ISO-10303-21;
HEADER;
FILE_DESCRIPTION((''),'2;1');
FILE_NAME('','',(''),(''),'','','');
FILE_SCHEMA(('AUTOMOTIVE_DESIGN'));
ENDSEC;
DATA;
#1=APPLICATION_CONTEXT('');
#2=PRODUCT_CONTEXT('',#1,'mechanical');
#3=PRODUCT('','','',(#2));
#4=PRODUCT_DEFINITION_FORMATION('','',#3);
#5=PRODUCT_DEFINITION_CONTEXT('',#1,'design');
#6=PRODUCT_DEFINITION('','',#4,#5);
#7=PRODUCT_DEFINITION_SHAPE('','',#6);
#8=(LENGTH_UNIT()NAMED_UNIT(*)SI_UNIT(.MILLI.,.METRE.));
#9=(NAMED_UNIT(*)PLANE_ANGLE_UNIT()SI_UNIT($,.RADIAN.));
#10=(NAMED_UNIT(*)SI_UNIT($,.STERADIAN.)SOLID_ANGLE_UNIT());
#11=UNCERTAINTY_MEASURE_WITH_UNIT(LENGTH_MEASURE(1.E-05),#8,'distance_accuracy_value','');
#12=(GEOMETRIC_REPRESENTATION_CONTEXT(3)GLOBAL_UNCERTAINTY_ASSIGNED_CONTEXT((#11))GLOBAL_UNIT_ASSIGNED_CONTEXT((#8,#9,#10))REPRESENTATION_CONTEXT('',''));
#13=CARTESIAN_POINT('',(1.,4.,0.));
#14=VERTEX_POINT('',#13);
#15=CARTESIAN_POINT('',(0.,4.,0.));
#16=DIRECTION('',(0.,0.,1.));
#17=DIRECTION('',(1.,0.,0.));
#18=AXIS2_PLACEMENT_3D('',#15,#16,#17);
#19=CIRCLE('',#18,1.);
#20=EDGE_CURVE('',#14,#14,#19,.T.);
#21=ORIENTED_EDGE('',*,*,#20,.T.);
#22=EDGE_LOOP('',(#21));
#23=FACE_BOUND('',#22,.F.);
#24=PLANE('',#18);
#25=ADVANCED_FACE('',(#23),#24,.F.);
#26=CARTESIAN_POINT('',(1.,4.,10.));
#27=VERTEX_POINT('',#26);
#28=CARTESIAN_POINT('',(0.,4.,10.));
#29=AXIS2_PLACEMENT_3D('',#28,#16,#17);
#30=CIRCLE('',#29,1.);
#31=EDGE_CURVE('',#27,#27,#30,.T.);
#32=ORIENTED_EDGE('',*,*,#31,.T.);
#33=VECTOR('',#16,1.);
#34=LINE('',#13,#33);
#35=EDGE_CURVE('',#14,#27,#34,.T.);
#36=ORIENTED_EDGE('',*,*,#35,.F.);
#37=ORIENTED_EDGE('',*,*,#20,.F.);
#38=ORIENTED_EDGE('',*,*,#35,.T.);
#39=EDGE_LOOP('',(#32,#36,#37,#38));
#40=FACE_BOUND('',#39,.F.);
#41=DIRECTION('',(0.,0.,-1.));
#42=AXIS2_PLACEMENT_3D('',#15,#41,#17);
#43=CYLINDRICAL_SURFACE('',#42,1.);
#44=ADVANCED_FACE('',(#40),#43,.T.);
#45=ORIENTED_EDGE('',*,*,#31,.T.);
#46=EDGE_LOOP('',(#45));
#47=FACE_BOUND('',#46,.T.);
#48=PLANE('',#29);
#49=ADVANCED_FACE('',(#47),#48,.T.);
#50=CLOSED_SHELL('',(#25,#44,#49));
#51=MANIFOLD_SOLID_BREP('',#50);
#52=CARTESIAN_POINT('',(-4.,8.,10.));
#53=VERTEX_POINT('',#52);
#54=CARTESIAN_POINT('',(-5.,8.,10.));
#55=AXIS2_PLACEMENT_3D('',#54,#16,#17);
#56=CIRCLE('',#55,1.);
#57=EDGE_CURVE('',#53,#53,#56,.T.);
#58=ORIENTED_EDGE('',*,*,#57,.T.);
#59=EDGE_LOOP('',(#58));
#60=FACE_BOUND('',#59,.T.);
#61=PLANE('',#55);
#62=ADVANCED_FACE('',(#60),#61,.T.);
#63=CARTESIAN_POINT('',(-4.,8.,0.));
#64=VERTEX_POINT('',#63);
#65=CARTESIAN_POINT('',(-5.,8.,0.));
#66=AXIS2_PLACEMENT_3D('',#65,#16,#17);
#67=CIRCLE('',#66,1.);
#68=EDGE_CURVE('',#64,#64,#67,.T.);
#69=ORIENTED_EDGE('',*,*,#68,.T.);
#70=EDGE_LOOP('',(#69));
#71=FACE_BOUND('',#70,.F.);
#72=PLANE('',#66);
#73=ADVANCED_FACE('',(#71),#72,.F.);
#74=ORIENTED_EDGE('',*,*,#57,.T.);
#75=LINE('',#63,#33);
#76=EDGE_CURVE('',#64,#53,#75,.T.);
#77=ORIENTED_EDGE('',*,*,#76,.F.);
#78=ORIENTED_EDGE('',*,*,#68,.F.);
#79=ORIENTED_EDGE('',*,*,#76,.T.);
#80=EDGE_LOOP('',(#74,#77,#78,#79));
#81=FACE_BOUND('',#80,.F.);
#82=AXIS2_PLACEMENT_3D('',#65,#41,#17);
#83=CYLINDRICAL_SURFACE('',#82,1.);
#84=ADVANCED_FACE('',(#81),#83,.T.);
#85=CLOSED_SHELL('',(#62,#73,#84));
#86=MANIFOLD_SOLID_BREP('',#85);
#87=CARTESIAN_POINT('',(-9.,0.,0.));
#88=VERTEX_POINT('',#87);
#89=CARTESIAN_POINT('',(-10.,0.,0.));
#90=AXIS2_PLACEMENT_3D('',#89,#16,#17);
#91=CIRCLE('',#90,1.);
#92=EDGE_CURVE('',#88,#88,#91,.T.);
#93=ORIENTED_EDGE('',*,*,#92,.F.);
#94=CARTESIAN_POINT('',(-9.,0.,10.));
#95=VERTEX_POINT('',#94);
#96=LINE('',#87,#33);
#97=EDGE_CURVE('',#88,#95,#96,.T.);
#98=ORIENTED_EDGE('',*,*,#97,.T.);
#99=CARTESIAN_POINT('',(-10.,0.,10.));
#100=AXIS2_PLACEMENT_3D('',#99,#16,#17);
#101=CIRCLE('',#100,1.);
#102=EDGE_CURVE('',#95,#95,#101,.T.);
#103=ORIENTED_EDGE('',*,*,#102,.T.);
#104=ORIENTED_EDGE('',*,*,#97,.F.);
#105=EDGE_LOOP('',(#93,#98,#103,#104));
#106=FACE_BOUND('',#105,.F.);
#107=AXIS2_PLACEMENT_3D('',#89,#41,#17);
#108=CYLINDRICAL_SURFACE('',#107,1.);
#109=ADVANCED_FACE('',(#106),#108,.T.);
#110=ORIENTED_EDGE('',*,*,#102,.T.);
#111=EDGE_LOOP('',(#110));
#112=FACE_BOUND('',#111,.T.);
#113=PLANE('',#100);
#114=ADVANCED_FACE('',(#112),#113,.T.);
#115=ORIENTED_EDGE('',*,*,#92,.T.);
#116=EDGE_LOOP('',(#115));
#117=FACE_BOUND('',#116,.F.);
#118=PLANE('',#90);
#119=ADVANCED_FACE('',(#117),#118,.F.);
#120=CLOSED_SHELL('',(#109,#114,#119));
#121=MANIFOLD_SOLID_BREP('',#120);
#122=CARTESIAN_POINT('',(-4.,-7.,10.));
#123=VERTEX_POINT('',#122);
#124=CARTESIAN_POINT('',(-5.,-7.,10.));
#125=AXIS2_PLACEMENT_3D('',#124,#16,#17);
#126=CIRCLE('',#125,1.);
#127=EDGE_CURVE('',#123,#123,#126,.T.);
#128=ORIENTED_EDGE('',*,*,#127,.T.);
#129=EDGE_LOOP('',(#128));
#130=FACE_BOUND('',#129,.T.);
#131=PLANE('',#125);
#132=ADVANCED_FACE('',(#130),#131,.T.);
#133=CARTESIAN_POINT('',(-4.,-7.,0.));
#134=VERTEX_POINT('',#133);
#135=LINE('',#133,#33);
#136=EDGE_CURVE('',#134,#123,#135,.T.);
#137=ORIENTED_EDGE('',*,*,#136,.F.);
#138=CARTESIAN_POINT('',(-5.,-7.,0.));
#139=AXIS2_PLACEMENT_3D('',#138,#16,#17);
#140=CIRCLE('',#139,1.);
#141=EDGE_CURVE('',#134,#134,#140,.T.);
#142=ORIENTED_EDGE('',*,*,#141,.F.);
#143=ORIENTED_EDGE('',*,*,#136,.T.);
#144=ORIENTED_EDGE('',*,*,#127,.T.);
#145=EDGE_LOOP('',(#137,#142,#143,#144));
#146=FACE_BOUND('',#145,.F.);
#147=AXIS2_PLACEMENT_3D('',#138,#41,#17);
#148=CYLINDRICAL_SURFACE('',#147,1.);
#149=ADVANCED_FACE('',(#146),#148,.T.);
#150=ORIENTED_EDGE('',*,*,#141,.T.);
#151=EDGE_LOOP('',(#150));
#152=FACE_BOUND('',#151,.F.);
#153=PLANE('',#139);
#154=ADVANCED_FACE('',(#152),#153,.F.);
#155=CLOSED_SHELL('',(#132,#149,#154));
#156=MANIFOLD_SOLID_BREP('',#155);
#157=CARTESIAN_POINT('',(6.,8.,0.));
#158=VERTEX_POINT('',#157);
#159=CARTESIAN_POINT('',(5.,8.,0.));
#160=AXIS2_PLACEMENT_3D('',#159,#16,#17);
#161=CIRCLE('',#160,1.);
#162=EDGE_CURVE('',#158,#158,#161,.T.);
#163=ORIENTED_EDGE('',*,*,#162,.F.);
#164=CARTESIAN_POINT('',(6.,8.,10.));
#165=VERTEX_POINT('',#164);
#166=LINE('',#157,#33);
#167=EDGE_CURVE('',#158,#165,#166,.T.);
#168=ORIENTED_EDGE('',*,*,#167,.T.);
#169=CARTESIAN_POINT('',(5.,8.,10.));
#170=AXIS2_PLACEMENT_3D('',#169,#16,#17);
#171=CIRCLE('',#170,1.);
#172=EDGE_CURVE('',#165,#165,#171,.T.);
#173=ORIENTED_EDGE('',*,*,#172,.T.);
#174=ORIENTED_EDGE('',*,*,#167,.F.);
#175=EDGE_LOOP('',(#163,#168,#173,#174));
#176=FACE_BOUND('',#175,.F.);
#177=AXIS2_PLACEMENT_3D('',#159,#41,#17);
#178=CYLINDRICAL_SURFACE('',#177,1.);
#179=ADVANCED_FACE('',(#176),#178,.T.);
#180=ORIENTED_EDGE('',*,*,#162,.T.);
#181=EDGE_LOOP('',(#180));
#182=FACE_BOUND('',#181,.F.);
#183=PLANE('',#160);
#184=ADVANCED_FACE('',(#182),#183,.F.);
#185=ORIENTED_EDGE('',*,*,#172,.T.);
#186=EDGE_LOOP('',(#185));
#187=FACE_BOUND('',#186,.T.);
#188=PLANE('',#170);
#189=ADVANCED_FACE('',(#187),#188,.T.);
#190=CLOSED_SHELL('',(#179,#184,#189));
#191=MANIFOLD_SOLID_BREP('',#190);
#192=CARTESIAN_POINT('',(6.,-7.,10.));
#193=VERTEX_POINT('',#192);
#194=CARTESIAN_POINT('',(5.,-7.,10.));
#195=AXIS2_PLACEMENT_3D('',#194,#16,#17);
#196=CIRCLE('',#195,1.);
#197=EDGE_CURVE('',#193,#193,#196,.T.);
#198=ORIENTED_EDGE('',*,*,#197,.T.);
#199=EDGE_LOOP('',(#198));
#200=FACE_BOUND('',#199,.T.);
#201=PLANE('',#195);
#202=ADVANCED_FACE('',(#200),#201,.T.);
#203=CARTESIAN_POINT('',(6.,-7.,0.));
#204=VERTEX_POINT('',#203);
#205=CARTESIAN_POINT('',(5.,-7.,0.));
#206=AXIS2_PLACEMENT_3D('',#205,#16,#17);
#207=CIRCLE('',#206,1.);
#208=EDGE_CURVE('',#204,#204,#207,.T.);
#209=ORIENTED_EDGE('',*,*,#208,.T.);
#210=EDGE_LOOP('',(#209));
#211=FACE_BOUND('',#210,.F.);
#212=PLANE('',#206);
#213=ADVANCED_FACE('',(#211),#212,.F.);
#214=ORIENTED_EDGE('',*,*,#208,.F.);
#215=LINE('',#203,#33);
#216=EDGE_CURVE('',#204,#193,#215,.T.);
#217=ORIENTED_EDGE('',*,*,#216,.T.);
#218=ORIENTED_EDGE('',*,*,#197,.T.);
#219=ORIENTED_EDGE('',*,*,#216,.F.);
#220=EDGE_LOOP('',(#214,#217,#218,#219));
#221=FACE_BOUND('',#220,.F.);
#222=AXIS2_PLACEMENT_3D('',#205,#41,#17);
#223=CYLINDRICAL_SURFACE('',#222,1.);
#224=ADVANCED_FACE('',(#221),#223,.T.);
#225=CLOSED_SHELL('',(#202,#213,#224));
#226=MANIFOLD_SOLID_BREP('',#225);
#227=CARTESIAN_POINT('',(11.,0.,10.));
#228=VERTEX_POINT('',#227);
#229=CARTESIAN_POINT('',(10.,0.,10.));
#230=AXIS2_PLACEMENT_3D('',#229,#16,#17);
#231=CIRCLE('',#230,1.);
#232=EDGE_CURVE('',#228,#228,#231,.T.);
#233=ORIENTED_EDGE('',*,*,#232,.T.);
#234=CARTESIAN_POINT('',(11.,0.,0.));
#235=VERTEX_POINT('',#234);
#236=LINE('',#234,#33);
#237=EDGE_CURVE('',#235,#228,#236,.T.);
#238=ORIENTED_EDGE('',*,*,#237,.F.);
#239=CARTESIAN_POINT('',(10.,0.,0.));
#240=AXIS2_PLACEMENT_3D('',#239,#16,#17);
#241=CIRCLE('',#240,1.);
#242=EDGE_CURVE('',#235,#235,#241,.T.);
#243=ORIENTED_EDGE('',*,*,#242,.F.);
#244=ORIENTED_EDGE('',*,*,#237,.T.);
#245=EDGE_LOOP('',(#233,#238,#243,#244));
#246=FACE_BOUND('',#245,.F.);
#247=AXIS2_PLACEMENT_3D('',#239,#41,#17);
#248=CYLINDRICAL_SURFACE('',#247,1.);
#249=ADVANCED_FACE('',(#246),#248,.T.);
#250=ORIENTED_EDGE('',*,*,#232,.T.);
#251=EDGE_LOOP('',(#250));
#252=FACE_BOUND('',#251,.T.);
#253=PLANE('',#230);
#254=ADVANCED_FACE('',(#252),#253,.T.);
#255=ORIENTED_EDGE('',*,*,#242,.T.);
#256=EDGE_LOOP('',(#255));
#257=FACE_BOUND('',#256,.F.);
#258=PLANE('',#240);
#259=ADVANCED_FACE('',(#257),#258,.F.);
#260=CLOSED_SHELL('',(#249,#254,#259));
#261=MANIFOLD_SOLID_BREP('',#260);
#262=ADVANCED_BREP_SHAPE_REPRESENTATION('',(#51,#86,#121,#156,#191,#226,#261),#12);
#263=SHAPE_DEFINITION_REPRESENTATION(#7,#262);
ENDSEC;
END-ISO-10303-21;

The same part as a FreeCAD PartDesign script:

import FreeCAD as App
import Part
import Sketcher
Q = App.Units.Quantity

doc = App.newDocument("Part")
body = doc.addObject("PartDesign::Body", "Body")

# Sketch on XY plane
sketch1 = body.newObject("Sketcher::SketchObject", "Sketch")
sketch1.AttachmentSupport = (doc.getObject("XY_Plane"), [""])
sketch1.MapMode = "FlatFace"
sketch1.addGeometry(Part.Circle(App.Vector(5, 8, 0), App.Vector(0, 0, 1), 1), False)
sketch1.addConstraint(Sketcher.Constraint("Diameter", 0, Q("2 mm")))
sketch1.addConstraint(Sketcher.Constraint("DistanceX", -1, 1, 0, 3, Q("5 mm")))
sketch1.addConstraint(Sketcher.Constraint("DistanceY", -1, 1, 0, 3, Q("8 mm")))
pad1 = body.newObject("PartDesign::Pad", "Pad")
pad1.Profile = sketch1
pad1.Length = 10
body2 = doc.addObject("PartDesign::Body", "Body001")

# Sketch on XY plane
sketch2 = body2.newObject("Sketcher::SketchObject", "Sketch001")
sketch2.AttachmentSupport = (doc.getObject("XY_Plane001"), [""])
sketch2.MapMode = "FlatFace"
sketch2.addGeometry(Part.Circle(App.Vector(-5, 8, 0), App.Vector(0, 0, 1), 1), False)
sketch2.addConstraint(Sketcher.Constraint("Diameter", 0, Q("2 mm")))
sketch2.addConstraint(Sketcher.Constraint("DistanceX", 0, 3, -1, 1, Q("5 mm")))
sketch2.addConstraint(Sketcher.Constraint("DistanceY", -1, 1, 0, 3, Q("8 mm")))
pad2 = body2.newObject("PartDesign::Pad", "Pad001")
pad2.Profile = sketch2
pad2.Length = 10
body3 = doc.addObject("PartDesign::Body", "Body002")

# Sketch on XY plane
sketch3 = body3.newObject("Sketcher::SketchObject", "Sketch002")
sketch3.AttachmentSupport = (doc.getObject("XY_Plane002"), [""])
sketch3.MapMode = "FlatFace"
sketch3.addGeometry(Part.Circle(App.Vector(-5, -7, 0), App.Vector(0, 0, 1), 1), False)
sketch3.addConstraint(Sketcher.Constraint("Diameter", 0, Q("2 mm")))
sketch3.addConstraint(Sketcher.Constraint("DistanceX", 0, 3, -1, 1, Q("5 mm")))
sketch3.addConstraint(Sketcher.Constraint("DistanceY", 0, 3, -1, 1, Q("7 mm")))
pad3 = body3.newObject("PartDesign::Pad", "Pad002")
pad3.Profile = sketch3
pad3.Length = 10
body4 = doc.addObject("PartDesign::Body", "Body003")

# Sketch on XY plane
sketch4 = body4.newObject("Sketcher::SketchObject", "Sketch003")
sketch4.AttachmentSupport = (doc.getObject("XY_Plane003"), [""])
sketch4.MapMode = "FlatFace"
sketch4.addGeometry(Part.Circle(App.Vector(5, -7, 0), App.Vector(0, 0, 1), 1), False)
sketch4.addConstraint(Sketcher.Constraint("Diameter", 0, Q("2 mm")))
sketch4.addConstraint(Sketcher.Constraint("DistanceX", -1, 1, 0, 3, Q("5 mm")))
sketch4.addConstraint(Sketcher.Constraint("DistanceY", 0, 3, -1, 1, Q("7 mm")))
pad4 = body4.newObject("PartDesign::Pad", "Pad003")
pad4.Profile = sketch4
pad4.Length = 10
body5 = doc.addObject("PartDesign::Body", "Body004")

# Sketch on XY plane
sketch5 = body5.newObject("Sketcher::SketchObject", "Sketch004")
sketch5.AttachmentSupport = (doc.getObject("XY_Plane004"), [""])
sketch5.MapMode = "FlatFace"
sketch5.addGeometry(Part.Circle(App.Vector(-10, 0, 0), App.Vector(0, 0, 1), 1), False)
sketch5.addConstraint(Sketcher.Constraint("PointOnObject", 0, 3, -1))
sketch5.addConstraint(Sketcher.Constraint("Diameter", 0, Q("2 mm")))
sketch5.addConstraint(Sketcher.Constraint("DistanceX", 0, 3, -1, 1, Q("10 mm")))
pad5 = body5.newObject("PartDesign::Pad", "Pad004")
pad5.Profile = sketch5
pad5.Length = 10
body6 = doc.addObject("PartDesign::Body", "Body005")

# Sketch on XY plane
sketch6 = body6.newObject("Sketcher::SketchObject", "Sketch005")
sketch6.AttachmentSupport = (doc.getObject("XY_Plane005"), [""])
sketch6.MapMode = "FlatFace"
sketch6.addGeometry(Part.Circle(App.Vector(10, 0, 0), App.Vector(0, 0, 1), 1), False)
sketch6.addConstraint(Sketcher.Constraint("PointOnObject", 0, 3, -1))
sketch6.addConstraint(Sketcher.Constraint("Diameter", 0, Q("2 mm")))
sketch6.addConstraint(Sketcher.Constraint("DistanceX", -1, 1, 0, 3, Q("10 mm")))
pad6 = body6.newObject("PartDesign::Pad", "Pad005")
pad6.Profile = sketch6
pad6.Length = 10
body7 = doc.addObject("PartDesign::Body", "Body006")
body7.AllowCompound = True

# Sketch on XY plane
sketch7 = body7.newObject("Sketcher::SketchObject", "Sketch006")
sketch7.AttachmentSupport = (doc.getObject("XY_Plane006"), [""])
sketch7.MapMode = "FlatFace"
sketch7.addGeometry(Part.Circle(App.Vector(0, 4, 0), App.Vector(0, 0, 1), 1), False)
sketch7.addConstraint(Sketcher.Constraint("PointOnObject", 0, 3, -2))
sketch7.addConstraint(Sketcher.Constraint("Diameter", 0, Q("2 mm")))
sketch7.addConstraint(Sketcher.Constraint("DistanceY", -1, 1, 0, 3, Q("4 mm")))
pad7 = body7.newObject("PartDesign::Pad", "Pad006")
pad7.Profile = sketch7
pad7.Length = 10
doc.recompute()

boolean = body7.newObject("PartDesign::Boolean", "Boolean")
boolean.Type = "Fuse"
boolean.addObjects([body])
doc.recompute()

boolean2 = body7.newObject("PartDesign::Boolean", "Boolean001")
boolean2.Type = "Fuse"
boolean2.addObjects([body2])
doc.recompute()

boolean3 = body7.newObject("PartDesign::Boolean", "Boolean002")
boolean3.Type = "Fuse"
boolean3.addObjects([body3])
doc.recompute()

boolean4 = body7.newObject("PartDesign::Boolean", "Boolean003")
boolean4.Type = "Fuse"
boolean4.addObjects([body4])
doc.recompute()

boolean5 = body7.newObject("PartDesign::Boolean", "Boolean004")
boolean5.Type = "Fuse"
boolean5.addObjects([body5])
doc.recompute()

boolean6 = body7.newObject("PartDesign::Boolean", "Boolean005")
boolean6.Type = "Fuse"
boolean6.addObjects([body6])

doc.recompute()
